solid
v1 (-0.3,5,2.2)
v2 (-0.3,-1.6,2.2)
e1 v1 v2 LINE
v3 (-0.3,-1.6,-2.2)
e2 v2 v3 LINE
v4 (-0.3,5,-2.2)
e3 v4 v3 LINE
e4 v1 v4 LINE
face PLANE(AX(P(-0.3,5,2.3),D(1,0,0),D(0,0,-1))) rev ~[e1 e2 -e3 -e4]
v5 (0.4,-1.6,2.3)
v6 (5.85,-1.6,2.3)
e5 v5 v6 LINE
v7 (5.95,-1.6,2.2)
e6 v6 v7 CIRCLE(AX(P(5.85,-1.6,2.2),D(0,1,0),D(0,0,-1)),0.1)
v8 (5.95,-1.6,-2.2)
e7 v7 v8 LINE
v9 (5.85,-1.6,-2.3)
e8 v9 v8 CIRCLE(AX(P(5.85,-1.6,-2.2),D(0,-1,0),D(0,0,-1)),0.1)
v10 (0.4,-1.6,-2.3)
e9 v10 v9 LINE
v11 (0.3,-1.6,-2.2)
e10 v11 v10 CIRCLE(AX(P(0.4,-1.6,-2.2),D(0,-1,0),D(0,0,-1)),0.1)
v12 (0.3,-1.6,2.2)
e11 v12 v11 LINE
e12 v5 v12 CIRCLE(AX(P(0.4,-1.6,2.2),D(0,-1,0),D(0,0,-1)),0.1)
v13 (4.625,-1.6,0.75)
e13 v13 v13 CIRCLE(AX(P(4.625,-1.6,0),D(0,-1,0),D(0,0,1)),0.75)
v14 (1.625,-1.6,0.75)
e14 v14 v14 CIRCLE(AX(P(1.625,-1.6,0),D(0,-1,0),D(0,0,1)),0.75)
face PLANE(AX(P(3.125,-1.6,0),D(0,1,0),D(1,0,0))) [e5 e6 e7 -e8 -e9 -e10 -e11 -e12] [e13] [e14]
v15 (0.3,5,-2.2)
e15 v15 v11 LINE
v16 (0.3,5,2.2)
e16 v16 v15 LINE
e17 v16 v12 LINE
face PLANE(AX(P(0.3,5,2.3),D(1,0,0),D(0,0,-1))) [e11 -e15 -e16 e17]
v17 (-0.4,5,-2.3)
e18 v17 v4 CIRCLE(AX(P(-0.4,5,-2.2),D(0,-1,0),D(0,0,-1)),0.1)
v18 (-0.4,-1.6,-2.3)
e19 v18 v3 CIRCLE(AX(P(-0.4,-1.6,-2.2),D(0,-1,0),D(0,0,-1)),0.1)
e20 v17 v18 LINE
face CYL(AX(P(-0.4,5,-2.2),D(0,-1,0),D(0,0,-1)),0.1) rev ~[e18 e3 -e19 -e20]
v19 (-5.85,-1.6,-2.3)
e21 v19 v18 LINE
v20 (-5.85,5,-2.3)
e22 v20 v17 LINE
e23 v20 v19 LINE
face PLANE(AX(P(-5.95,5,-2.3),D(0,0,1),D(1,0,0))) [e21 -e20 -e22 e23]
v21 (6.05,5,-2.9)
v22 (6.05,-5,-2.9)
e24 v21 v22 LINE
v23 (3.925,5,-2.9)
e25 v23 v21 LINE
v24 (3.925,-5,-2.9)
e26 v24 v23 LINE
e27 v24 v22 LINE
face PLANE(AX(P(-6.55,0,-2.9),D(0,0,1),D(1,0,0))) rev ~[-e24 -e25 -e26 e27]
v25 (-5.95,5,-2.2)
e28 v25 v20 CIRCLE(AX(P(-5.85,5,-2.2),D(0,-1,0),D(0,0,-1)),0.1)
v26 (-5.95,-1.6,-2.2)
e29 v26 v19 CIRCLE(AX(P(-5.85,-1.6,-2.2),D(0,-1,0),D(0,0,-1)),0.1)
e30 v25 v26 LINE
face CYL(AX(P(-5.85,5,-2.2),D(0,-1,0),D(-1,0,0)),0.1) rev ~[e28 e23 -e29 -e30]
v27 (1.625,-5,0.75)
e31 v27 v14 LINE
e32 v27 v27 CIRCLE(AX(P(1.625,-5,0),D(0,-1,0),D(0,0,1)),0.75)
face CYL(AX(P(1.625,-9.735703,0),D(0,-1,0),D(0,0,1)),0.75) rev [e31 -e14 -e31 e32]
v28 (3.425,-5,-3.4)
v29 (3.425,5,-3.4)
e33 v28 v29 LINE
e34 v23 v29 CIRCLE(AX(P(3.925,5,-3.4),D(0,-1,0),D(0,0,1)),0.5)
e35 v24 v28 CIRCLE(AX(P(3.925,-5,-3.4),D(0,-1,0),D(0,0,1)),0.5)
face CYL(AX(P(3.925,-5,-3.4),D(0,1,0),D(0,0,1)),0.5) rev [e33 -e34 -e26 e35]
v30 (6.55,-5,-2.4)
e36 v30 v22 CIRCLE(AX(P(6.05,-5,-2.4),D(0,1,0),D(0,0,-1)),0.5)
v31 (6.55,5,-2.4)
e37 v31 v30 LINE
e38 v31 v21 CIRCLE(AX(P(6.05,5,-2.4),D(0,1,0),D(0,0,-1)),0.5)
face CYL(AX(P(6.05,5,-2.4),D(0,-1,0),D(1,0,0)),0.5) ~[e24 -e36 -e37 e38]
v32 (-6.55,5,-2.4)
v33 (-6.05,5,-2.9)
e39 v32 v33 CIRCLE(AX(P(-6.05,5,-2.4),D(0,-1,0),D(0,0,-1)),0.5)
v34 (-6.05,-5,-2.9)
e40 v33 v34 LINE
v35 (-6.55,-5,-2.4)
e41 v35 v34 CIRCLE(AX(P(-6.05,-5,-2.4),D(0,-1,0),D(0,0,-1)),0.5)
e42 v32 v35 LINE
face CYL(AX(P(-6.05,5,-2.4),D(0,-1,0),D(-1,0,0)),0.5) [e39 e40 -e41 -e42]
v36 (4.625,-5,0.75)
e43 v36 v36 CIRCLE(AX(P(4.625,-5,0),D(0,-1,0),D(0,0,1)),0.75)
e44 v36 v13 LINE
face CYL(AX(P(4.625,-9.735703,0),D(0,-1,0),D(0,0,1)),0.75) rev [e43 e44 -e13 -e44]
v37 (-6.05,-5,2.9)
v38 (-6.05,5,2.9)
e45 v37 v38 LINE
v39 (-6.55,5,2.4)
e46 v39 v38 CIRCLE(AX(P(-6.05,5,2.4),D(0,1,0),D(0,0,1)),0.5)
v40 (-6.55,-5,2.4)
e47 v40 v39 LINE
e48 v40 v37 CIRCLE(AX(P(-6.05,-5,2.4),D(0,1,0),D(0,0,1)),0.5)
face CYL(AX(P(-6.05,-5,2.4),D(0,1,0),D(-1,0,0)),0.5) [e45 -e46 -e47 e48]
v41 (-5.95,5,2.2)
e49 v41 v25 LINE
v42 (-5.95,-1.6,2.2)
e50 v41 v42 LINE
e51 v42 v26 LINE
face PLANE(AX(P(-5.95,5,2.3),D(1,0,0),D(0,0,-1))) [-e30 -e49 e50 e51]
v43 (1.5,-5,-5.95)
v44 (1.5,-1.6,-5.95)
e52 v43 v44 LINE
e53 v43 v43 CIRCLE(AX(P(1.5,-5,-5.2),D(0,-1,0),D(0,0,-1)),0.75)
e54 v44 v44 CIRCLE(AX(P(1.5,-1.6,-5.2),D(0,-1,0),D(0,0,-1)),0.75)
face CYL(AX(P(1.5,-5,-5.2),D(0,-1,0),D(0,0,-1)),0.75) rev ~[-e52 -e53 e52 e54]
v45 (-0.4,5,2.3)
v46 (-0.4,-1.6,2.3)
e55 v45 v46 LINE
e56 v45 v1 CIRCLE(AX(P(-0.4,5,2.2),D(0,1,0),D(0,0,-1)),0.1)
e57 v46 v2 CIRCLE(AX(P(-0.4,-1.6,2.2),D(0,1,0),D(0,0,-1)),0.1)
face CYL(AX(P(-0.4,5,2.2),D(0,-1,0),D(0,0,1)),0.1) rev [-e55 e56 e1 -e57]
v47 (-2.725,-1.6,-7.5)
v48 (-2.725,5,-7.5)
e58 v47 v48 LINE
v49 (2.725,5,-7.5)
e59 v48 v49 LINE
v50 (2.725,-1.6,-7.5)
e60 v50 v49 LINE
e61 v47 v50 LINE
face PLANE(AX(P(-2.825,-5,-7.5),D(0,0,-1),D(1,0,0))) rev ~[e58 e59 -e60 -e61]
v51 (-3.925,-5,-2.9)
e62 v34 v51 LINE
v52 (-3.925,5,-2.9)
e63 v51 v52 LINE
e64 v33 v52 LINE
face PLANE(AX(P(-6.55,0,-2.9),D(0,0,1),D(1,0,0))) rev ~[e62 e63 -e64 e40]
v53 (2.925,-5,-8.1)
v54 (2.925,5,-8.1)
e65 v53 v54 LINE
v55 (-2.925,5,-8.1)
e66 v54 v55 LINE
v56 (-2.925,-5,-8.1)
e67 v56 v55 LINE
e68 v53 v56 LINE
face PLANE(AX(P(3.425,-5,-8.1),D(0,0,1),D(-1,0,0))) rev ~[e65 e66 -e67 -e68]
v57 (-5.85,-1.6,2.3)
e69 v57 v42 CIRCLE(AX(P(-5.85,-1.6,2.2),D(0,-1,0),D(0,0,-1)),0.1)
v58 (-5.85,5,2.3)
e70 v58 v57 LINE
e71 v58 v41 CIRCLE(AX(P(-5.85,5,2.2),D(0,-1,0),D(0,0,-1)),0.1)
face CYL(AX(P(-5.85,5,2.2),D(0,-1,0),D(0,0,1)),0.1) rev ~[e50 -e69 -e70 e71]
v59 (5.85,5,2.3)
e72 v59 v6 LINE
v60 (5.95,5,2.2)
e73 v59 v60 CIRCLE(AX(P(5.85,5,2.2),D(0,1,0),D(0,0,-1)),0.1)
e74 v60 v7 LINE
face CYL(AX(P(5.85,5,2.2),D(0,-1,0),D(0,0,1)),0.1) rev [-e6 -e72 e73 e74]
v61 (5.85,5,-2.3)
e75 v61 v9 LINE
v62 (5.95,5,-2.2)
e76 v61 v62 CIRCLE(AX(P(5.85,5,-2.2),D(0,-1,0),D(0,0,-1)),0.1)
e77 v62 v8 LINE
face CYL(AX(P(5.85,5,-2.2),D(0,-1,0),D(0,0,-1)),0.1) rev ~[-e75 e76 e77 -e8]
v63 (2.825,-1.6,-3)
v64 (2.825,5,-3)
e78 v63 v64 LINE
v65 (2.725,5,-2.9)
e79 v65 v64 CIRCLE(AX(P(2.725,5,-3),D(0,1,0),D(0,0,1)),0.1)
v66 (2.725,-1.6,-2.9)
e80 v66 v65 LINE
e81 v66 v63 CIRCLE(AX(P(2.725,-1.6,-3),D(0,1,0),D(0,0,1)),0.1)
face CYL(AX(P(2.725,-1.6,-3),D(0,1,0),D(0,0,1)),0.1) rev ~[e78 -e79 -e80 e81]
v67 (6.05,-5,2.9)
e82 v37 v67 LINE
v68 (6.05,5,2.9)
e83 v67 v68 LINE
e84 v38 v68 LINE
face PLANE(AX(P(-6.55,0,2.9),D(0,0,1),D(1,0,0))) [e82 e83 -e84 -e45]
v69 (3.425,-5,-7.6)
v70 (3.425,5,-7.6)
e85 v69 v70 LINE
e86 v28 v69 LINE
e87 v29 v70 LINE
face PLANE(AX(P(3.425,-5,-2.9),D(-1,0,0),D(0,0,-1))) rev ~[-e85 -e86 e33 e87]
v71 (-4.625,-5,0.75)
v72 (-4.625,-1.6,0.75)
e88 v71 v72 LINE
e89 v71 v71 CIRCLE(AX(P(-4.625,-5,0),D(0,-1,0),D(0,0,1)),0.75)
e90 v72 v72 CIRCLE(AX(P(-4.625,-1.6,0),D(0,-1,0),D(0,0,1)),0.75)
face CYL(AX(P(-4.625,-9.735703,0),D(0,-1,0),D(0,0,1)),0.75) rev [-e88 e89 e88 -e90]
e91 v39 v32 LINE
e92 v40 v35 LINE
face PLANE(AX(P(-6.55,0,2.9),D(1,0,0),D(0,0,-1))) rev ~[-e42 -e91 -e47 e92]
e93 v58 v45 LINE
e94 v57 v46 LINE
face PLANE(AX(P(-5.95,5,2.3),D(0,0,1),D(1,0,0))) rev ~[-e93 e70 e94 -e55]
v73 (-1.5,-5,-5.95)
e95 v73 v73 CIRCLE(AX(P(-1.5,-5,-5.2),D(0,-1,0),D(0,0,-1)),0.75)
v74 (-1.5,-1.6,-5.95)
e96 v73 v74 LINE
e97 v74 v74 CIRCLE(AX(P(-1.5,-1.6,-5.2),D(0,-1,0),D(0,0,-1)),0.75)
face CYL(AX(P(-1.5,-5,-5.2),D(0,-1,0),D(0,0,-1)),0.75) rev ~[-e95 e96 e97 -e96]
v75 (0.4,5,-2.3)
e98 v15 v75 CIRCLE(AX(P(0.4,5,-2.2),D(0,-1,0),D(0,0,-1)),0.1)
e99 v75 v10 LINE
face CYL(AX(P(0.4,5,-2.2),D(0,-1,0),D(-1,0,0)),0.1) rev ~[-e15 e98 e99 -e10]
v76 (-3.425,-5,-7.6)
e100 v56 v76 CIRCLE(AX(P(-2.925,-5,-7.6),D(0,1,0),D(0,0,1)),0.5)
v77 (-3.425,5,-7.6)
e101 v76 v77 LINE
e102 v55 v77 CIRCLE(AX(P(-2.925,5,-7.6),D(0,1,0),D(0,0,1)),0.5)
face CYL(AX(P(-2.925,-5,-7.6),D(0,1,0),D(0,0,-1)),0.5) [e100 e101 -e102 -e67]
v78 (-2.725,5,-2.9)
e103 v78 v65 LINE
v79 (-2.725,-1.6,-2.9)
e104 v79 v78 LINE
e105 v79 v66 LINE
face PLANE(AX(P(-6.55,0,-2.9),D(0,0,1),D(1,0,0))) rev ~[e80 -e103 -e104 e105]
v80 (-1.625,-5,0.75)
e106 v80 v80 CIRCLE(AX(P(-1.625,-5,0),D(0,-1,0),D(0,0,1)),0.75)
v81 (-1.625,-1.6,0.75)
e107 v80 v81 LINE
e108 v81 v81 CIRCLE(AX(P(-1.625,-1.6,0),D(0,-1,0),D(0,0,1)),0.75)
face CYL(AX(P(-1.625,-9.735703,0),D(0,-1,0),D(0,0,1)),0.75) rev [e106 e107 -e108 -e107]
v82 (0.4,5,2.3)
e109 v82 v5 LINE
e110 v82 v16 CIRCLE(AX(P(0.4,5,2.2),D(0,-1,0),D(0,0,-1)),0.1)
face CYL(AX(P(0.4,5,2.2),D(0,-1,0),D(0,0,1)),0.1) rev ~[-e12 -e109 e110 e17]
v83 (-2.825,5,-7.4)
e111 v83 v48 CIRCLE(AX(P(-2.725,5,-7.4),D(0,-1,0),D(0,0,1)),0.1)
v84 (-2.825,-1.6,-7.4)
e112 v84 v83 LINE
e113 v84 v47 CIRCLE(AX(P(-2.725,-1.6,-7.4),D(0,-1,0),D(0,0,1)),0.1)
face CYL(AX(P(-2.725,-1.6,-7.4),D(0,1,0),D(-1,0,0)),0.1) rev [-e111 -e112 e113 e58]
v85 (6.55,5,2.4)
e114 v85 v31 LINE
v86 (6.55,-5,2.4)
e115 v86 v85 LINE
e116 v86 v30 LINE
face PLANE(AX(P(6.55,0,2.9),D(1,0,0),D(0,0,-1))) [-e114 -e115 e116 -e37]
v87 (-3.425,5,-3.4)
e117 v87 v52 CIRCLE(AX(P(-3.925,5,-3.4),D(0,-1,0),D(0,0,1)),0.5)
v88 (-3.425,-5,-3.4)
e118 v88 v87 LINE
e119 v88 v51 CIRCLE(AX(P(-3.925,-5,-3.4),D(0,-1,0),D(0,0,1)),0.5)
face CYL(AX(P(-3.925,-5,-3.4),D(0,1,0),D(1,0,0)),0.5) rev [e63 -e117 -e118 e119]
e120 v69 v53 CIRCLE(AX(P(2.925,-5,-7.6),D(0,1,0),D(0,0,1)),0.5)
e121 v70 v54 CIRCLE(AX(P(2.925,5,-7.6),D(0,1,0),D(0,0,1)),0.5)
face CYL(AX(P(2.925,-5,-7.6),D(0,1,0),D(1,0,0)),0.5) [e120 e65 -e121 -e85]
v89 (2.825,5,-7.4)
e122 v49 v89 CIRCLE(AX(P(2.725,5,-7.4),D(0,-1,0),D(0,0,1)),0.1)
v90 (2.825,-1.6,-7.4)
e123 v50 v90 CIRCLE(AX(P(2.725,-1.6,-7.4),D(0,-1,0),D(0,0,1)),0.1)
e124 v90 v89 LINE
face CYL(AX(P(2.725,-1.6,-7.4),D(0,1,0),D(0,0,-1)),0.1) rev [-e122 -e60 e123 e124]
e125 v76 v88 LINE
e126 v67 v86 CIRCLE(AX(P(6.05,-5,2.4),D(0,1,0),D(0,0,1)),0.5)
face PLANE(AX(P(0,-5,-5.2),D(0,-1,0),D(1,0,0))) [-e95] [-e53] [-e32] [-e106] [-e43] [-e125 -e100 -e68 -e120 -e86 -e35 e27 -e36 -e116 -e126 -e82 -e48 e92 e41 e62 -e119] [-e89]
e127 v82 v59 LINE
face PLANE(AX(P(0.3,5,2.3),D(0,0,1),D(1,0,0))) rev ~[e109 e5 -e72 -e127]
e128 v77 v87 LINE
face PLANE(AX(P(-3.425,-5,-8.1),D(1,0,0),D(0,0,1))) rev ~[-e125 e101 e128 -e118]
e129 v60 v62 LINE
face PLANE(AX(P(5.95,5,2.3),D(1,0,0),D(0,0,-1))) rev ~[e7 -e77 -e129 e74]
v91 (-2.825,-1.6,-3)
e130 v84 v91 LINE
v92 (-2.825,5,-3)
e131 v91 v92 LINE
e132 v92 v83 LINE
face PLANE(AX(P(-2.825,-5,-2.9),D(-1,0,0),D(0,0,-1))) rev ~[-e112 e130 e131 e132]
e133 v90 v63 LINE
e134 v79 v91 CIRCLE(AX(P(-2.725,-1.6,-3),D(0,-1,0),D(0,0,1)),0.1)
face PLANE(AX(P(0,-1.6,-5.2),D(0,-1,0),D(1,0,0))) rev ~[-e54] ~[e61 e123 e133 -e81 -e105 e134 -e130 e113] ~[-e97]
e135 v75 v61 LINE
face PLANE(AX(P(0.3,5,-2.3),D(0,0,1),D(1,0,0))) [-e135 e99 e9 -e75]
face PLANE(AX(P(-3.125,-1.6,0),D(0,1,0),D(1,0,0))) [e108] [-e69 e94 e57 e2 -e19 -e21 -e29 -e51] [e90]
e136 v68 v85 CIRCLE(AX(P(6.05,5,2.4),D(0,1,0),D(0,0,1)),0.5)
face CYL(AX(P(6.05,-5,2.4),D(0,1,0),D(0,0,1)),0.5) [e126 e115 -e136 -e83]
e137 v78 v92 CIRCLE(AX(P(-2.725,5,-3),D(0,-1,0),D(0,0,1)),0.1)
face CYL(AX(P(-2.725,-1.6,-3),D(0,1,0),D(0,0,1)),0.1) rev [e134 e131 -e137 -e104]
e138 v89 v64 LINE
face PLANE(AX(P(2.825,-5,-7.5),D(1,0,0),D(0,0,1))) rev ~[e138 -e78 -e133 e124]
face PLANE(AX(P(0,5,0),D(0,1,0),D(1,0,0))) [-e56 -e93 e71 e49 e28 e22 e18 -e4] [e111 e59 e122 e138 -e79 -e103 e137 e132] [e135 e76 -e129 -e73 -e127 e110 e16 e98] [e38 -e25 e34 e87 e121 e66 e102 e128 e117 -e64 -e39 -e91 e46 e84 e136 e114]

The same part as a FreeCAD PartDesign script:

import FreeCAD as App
import Part
import Sketcher


def edges_at(feature, points):
    """Names of the edges that pass closest to the given points."""
    edges = feature.Shape.Edges
    near = lambda p: min(range(len(edges)), key=lambda i: edges[i].distToShape(Part.Vertex(*p))[0])
    return sorted({f"Edge{near(p) + 1}" for p in points})


def add_polygon(sketch, points):
    """Adds a closed chain of lines whose ends are joined by coincident constraints."""
    first, n = sketch.GeometryCount, len(points)
    for a, b in zip(points, points[1:] + points[:1]):
        sketch.addGeometry(Part.LineSegment(App.Vector(*a, 0), App.Vector(*b, 0)), False)
    for i in range(n):
        sketch.addConstraint(Sketcher.Constraint("Coincident", first + i, 2, first + (i + 1) % n, 1))

doc = App.newDocument("Part")
body = doc.addObject("PartDesign::Body", "Body")

sketch1 = body.newObject("Sketcher::SketchObject", "Sketch")
sketch1.AttachmentSupport = (doc.getObject("XZ_Plane"), [""])
sketch1.MapMode = "FlatFace"
add_polygon(sketch1, [(-6.55, -2.9), (-6.55, 2.9), (6.55, 2.9), (6.55, -2.9)])
sketch1.addConstraint(Sketcher.Constraint("Vertical", 0))
sketch1.addConstraint(Sketcher.Constraint("Horizontal", 1))
sketch1.addConstraint(Sketcher.Constraint("Vertical", 2))
sketch1.addConstraint(Sketcher.Constraint("Horizontal", 3))
sketch1.addConstraint(Sketcher.Constraint("Symmetric", 0, 2, 2, 2, -1, 1))
sketch1.addConstraint(Sketcher.Constraint("DistanceX", 1, 1, 1, 2, 13.1))
sketch1.addConstraint(Sketcher.Constraint("DistanceY", 0, 1, 0, 2, 5.8))
pad1 = body.newObject("PartDesign::Pad", "Pad")
pad1.Profile = sketch1
pad1.Length = 10
pad1.Midplane = True

sketch2 = body.newObject("Sketcher::SketchObject", "Sketch001")
sketch2.AttachmentSupport = (doc.getObject("XZ_Plane"), [""])
sketch2.MapMode = "FlatFace"
sketch2.AttachmentOffset = App.Placement(App.Vector(0, 0, -5), App.Rotation())
add_polygon(sketch2, [(-5.95, -2.3), (-5.95, 2.3), (-0.3, 2.3), (-0.3, -2.3)])
add_polygon(sketch2, [(0.3, -2.3), (0.3, 2.3), (5.95, 2.3), (5.95, -2.3)])
sketch2.addConstraint(Sketcher.Constraint("Vertical", 0))
sketch2.addConstraint(Sketcher.Constraint("Horizontal", 1))
sketch2.addConstraint(Sketcher.Constraint("Vertical", 2))
sketch2.addConstraint(Sketcher.Constraint("Horizontal", 3))
sketch2.addConstraint(Sketcher.Constraint("Vertical", 4))
sketch2.addConstraint(Sketcher.Constraint("Horizontal", 5))
sketch2.addConstraint(Sketcher.Constraint("Vertical", 6))
sketch2.addConstraint(Sketcher.Constraint("Horizontal", 7))
sketch2.addConstraint(Sketcher.Constraint("Symmetric", 2, 2, 4, 2, -1, 1))
sketch2.addConstraint(Sketcher.Constraint("Symmetric", 0, 2, 6, 2, -1, 1))
sketch2.addConstraint(Sketcher.Constraint("Horizontal", 1, 2, 4, 2))
sketch2.addConstraint(Sketcher.Constraint("DistanceY", 0, 1, 0, 2, 4.6))
sketch2.addConstraint(Sketcher.Constraint("DistanceX", 1, 1, 1, 2, 5.65))
sketch2.addConstraint(Sketcher.Constraint("DistanceX", 1, 2, -1, 1, 0.3))
pocket1 = body.newObject("PartDesign::Pocket", "Pocket")
pocket1.Profile = sketch2
pocket1.Length = 6.6
pocket1.Reversed = True

sketch3 = body.newObject("Sketcher::SketchObject", "Sketch002")
sketch3.AttachmentSupport = (doc.getObject("XZ_Plane"), [""])
sketch3.MapMode = "FlatFace"
sketch3.addGeometry(Part.Circle(App.Vector(-4.625, 0, 0), App.Vector(0, 0, 1), 0.75), False)
sketch3.addGeometry(Part.Circle(App.Vector(-1.625, 0, 0), App.Vector(0, 0, 1), 0.75), False)
sketch3.addGeometry(Part.Circle(App.Vector(1.625, 0, 0), App.Vector(0, 0, 1), 0.75), False)
sketch3.addGeometry(Part.Circle(App.Vector(4.625, 0, 0), App.Vector(0, 0, 1), 0.75), False)
sketch3.addConstraint(Sketcher.Constraint("Equal", 0, 1))
sketch3.addConstraint(Sketcher.Constraint("Equal", 1, 2))
sketch3.addConstraint(Sketcher.Constraint("Equal", 2, 3))
sketch3.addConstraint(Sketcher.Constraint("Symmetric", 1, 3, 2, 3, -1, 1))
sketch3.addConstraint(Sketcher.Constraint("Symmetric", 0, 3, 3, 3, -1, 1))
sketch3.addConstraint(Sketcher.Constraint("PointOnObject", 0, 3, -1))
sketch3.addConstraint(Sketcher.Constraint("PointOnObject", 1, 3, -1))
sketch3.addConstraint(Sketcher.Constraint("Diameter", 0, 1.5))
sketch3.addConstraint(Sketcher.Constraint("DistanceX", 0, 3, 1, 3, 3.0))
sketch3.addConstraint(Sketcher.Constraint("DistanceX", 1, 3, 2, 3, 3.25))
pocket2 = body.newObject("PartDesign::Pocket", "Pocket001")
pocket2.Profile = sketch3
pocket2.Type = "ThroughAll"
pocket2.Midplane = True

sketch4 = body.newObject("Sketcher::SketchObject", "Sketch003")
sketch4.AttachmentSupport = (doc.getObject("XZ_Plane"), [""])
sketch4.MapMode = "FlatFace"
sketch4.AttachmentOffset = App.Placement(App.Vector(0, 0, 5), App.Rotation())
add_polygon(sketch4, [(-3.425, -8.1), (-3.425, -2.9), (-2.825, -2.9), (-2.825, -7.5), (2.825, -7.5), (2.825, -2.9), (3.425, -2.9), (3.425, -8.1)])
sketch4.addConstraint(Sketcher.Constraint("Vertical", 0))
sketch4.addConstraint(Sketcher.Constraint("Horizontal", 1))
sketch4.addConstraint(Sketcher.Constraint("Vertical", 2))
sketch4.addConstraint(Sketcher.Constraint("Horizontal", 3))
sketch4.addConstraint(Sketcher.Constraint("Vertical", 4))
sketch4.addConstraint(Sketcher.Constraint("Horizontal", 5))
sketch4.addConstraint(Sketcher.Constraint("Vertical", 6))
sketch4.addConstraint(Sketcher.Constraint("Horizontal", 7))
sketch4.addConstraint(Sketcher.Constraint("Symmetric", 1, 2, 4, 2, -2))
sketch4.addConstraint(Sketcher.Constraint("Equal", 1, 5))
sketch4.addConstraint(Sketcher.Constraint("DistanceX", 1, 1, 1, 2, 0.6))
sketch4.addConstraint(Sketcher.Constraint("DistanceY", 0, 1, 0, 2, 5.2))
sketch4.addConstraint(Sketcher.Constraint("DistanceY", 2, 2, 2, 1, 4.6))
sketch4.addConstraint(Sketcher.Constraint("DistanceX", 3, 1, 3, 2, 5.65))
sketch4.addConstraint(Sketcher.Constraint("DistanceY", 0, 2, -1, 1, 2.9))
pad2 = body.newObject("PartDesign::Pad", "Pad001")
pad2.Profile = sketch4
pad2.Length = 10
pad2.Reversed = True

sketch5 = body.newObject("Sketcher::SketchObject", "Sketch004")
sketch5.AttachmentSupport = (doc.getObject("XZ_Plane"), [""])
sketch5.MapMode = "FlatFace"
sketch5.AttachmentOffset = App.Placement(App.Vector(0, 0, 5), App.Rotation())
add_polygon(sketch5, [(-2.825, -2.9), (-2.825, -7.5), (2.825, -7.5), (2.825, -2.9)])
sketch5.addGeometry(Part.Circle(App.Vector(-1.5, -5.2, 0), App.Vector(0, 0, 1), 0.75), False)
sketch5.addGeometry(Part.Circle(App.Vector(1.5, -5.2, 0), App.Vector(0, 0, 1), 0.75), False)
sketch5.addConstraint(Sketcher.Constraint("Vertical", 0))
sketch5.addConstraint(Sketcher.Constraint("Horizontal", 1))
sketch5.addConstraint(Sketcher.Constraint("Vertical", 2))
sketch5.addConstraint(Sketcher.Constraint("Horizontal", 3))
sketch5.addConstraint(Sketcher.Constraint("Equal", 4, 5))
sketch5.addConstraint(Sketcher.Constraint("Symmetric", 4, 3, 5, 3, -2))
sketch5.addConstraint(Sketcher.Constraint("Diameter", 4, 1.5))
sketch5.addConstraint(Sketcher.Constraint("DistanceY", 0, 2, 0, 1, 4.6))
sketch5.addConstraint(Sketcher.Constraint("DistanceX", 4, 3, 5, 3, 3.0))
sketch5.addConstraint(Sketcher.Constraint("DistanceX", 1, 1, 1, 2, 5.65))
sketch5.addConstraint(Sketcher.Constraint("DistanceY", 4, 3, -1, 1, 5.2))
sketch5.addConstraint(Sketcher.Constraint("DistanceY", 0, 2, -1, 1, 7.5))
sketch5.addConstraint(Sketcher.Constraint("DistanceX", 0, 2, -1, 1, 2.825))
pad3 = body.newObject("PartDesign::Pad", "Pad002")
pad3.Profile = sketch5
pad3.Length = 3.4
pad3.Reversed = True
doc.recompute()

fillet = body.newObject("PartDesign::Fillet", "Fillet")
fillet.Base = (pad3, edges_at(pad3, [
    (-6.55, 0, -2.9),
    (-3.425, 0, -2.9),
    (-3.425, 0, -8.1),
    (3.425, 0, -8.1),
    (6.55, 0, -2.9),
    (3.425, 0, -2.9),
    (6.55, 0, 2.9),
    (-6.55, 0, 2.9),
]))
fillet.Radius = 0.5
doc.recompute()

fillet2 = body.newObject("PartDesign::Fillet", "Fillet001")
fillet2.Base = (fillet, edges_at(fillet, [
    (-5.95, 1.7, 2.3),
    (-5.95, 1.7, -2.3),
    (-0.3, 1.7, -2.3),
    (-0.3, 1.7, 2.3),
    (5.95, 1.7, 2.3),
    (0.3, 1.7, 2.3),
    (0.3, 1.7, -2.3),
    (5.95, 1.7, -2.3),
    (2.825, 1.7, -7.5),
    (-2.825, 1.7, -7.5),
    (-2.825, 1.7, -2.9),
    (2.825, 1.7, -2.9),
]))
fillet2.Radius = 0.1

doc.recompute()
